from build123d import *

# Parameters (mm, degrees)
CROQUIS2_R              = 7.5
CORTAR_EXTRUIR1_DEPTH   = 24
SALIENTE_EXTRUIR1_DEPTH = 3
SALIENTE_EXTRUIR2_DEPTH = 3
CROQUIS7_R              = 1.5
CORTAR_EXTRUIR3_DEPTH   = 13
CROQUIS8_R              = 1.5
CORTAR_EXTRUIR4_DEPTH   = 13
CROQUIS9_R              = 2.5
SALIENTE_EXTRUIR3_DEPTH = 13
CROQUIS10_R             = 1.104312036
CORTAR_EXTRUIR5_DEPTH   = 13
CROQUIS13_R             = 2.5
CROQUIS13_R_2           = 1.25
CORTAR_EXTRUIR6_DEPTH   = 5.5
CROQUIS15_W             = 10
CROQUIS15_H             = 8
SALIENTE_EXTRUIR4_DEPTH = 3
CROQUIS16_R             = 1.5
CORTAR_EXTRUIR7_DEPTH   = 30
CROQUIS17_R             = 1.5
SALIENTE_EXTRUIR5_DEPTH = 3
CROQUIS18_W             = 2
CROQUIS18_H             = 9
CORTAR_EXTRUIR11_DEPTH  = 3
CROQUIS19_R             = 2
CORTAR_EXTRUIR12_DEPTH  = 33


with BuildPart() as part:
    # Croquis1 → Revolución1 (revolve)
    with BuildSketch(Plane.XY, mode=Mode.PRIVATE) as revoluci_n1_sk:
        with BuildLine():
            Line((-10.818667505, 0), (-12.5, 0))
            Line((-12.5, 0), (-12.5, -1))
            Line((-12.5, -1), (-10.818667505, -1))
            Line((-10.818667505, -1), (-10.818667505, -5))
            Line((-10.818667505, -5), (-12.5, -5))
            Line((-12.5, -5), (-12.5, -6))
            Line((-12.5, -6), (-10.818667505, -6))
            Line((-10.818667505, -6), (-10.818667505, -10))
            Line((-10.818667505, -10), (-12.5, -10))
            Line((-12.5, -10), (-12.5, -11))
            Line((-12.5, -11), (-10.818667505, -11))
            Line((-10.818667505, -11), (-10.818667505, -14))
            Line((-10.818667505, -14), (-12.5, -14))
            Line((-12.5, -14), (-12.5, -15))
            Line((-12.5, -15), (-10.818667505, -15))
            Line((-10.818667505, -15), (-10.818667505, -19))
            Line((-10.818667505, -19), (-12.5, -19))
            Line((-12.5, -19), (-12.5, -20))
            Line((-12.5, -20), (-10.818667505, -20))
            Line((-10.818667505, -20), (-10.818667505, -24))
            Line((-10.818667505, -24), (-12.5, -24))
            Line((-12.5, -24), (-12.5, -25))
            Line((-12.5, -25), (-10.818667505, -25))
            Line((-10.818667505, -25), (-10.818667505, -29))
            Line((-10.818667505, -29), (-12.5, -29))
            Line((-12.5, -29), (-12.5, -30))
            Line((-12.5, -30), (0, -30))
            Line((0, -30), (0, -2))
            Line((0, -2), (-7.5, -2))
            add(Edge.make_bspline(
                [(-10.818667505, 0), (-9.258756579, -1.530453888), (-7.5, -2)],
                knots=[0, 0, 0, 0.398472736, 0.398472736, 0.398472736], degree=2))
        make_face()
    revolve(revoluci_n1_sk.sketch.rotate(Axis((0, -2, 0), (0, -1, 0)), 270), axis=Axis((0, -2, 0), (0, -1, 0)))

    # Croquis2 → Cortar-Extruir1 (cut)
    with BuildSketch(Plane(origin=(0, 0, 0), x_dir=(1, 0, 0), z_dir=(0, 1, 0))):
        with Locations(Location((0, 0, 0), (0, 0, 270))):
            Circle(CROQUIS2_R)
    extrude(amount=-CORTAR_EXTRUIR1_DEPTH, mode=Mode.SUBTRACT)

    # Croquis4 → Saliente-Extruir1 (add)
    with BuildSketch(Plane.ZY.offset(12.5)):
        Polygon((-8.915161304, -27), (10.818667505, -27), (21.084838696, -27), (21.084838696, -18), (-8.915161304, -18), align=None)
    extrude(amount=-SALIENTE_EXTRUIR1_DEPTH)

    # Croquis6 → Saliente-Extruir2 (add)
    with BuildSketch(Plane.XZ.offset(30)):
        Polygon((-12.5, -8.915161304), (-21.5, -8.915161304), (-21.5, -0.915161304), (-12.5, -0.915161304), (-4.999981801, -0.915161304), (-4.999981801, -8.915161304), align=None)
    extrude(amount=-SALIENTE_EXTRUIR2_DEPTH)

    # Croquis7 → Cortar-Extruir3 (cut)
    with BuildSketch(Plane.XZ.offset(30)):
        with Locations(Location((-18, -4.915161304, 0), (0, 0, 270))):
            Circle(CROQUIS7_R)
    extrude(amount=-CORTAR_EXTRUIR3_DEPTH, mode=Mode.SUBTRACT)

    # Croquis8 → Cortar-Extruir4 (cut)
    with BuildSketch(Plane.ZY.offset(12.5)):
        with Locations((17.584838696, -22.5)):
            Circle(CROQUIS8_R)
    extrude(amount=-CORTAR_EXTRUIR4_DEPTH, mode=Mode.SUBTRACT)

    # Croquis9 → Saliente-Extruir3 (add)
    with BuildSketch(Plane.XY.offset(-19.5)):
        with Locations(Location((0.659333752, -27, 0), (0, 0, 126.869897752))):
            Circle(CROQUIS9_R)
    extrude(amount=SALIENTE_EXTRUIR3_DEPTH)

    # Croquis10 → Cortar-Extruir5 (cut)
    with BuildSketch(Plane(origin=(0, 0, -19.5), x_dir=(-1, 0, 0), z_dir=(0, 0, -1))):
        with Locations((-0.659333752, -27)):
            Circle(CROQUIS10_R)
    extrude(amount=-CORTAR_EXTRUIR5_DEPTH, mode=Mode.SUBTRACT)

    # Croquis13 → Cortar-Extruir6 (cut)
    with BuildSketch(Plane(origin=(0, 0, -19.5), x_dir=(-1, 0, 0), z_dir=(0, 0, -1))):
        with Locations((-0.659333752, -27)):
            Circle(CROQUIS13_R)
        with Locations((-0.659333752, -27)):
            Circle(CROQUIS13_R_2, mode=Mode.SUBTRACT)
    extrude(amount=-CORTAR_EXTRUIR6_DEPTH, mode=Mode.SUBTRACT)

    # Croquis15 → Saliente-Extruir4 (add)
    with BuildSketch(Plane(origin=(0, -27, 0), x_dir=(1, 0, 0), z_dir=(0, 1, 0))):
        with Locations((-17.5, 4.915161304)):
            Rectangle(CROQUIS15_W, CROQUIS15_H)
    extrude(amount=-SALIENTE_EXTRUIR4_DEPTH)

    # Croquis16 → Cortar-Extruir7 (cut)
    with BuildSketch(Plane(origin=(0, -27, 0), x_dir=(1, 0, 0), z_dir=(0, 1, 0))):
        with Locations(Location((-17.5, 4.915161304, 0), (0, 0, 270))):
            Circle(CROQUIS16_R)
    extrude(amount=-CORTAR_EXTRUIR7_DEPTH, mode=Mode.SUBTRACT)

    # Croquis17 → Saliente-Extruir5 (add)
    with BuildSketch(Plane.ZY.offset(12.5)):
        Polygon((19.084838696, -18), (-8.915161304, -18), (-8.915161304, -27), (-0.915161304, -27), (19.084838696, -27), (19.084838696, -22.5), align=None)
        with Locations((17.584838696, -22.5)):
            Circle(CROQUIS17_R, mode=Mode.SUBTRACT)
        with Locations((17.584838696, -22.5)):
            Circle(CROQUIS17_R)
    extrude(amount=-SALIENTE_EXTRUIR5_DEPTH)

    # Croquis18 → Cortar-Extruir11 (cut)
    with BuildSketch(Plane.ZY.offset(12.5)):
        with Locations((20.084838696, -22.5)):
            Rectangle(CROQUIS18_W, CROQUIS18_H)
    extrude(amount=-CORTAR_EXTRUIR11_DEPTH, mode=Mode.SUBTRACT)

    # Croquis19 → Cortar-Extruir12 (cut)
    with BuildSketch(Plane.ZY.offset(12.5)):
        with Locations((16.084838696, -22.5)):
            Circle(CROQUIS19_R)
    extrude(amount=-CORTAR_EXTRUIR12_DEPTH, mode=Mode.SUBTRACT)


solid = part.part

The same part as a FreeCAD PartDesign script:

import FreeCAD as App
import Part
import Sketcher

V = App.Vector
Q = App.Units.Quantity


def add_polygon(sketch, points):
    """Adds a closed chain of lines whose ends are joined by coincident constraints."""
    first, n = sketch.GeometryCount, len(points)
    for a, b in zip(points, points[1:] + points[:1]):
        sketch.addGeometry(Part.LineSegment(App.Vector(*a, 0), App.Vector(*b, 0)), False)
    for i in range(n):
        sketch.addConstraint(Sketcher.Constraint("Coincident", first + i, 2, first + (i + 1) % n, 1))

doc = App.newDocument("Part")
params = doc.addObject("Spreadsheet::Sheet", "Params")
for row, (alias, value) in enumerate([
    ("sketch1_height", "1 mm"),
    ("sketch1_height2", "4 mm"),
    ("sketch1_height3", "3 mm"),
    ("sketch1_width", "12.5 mm"),
    ("revolution_angle", "360 deg"),
    ("sketch2_diameter", "15 mm"),
    ("pocket1_length", "24 mm"),
    ("sketch3_width", "9 mm"),
    ("sketch3_height", "30 mm"),
    ("pad1_length", "3 mm"),
    ("sketch4_height", "8 mm"),
    ("pad2_length", "3 mm"),
    ("sketch5_diameter", "3 mm"),
    ("pocket2_length", "13 mm"),
    ("sketch6_diameter", "3 mm"),
    ("pocket3_length", "13 mm"),
    ("sketch7_diameter", "5 mm"),
    ("pad3_length", "13 mm"),
    ("pocket4_length", "13 mm"),
    ("sketch9_diameter", "5 mm"),
    ("sketch9_diameter2", "2.5 mm"),
    ("pocket5_length", "5.5 mm"),
    ("sketch10_width", "10 mm"),
    ("sketch10_height", "8 mm"),
    ("pad4_length", "3 mm"),
    ("sketch11_diameter", "3 mm"),
    ("pocket6_length", "30 mm"),
    ("sketch12_width", "9 mm"),
    ("sketch12_height", "28 mm"),
    ("pad5_length", "3 mm"),
    ("sketch13_width", "9 mm"),
    ("sketch13_height", "2 mm"),
    ("pocket7_length", "3 mm"),
    ("sketch14_diameter", "4 mm"),
    ("pocket8_length", "33 mm"),
], start=1):
    params.set(f"A{row}", alias)
    params.set(f"B{row}", "=" + value)
    params.setAlias(f"B{row}", alias)

body = doc.addObject("PartDesign::Body", "Body")

sketch1 = doc.addObject("Sketcher::SketchObject", "Sketch")
body.addObject(sketch1)
sketch1.AttachmentSupport = (doc.XY_Plane, [""])
sketch1.MapMode = "FlatFace"
sketch1.addGeometry([
    Part.LineSegment(V(-10.818668, 0, 0), V(-12.5, 0, 0)),
    Part.LineSegment(V(-12.5, 0, 0), V(-12.5, -1, 0)),
    Part.LineSegment(V(-12.5, -1, 0), V(-10.818668, -1, 0)),
    Part.LineSegment(V(-10.818668, -1, 0), V(-10.818668, -5, 0)),
    Part.LineSegment(V(-10.818668, -5, 0), V(-12.5, -5, 0)),
    Part.LineSegment(V(-12.5, -5, 0), V(-12.5, -6, 0)),
    Part.LineSegment(V(-12.5, -6, 0), V(-10.818668, -6, 0)),
    Part.LineSegment(V(-10.818668, -6, 0), V(-10.818668, -10, 0)),
    Part.LineSegment(V(-10.818668, -10, 0), V(-12.5, -10, 0)),
    Part.LineSegment(V(-12.5, -10, 0), V(-12.5, -11, 0)),
    Part.LineSegment(V(-12.5, -11, 0), V(-10.818668, -11, 0)),
    Part.LineSegment(V(-10.818668, -11, 0), V(-10.818668, -14, 0)),
    Part.LineSegment(V(-10.818668, -14, 0), V(-12.5, -14, 0)),
    Part.LineSegment(V(-12.5, -14, 0), V(-12.5, -15, 0)),
    Part.LineSegment(V(-12.5, -15, 0), V(-10.818668, -15, 0)),
    Part.LineSegment(V(-10.818668, -15, 0), V(-10.818668, -19, 0)),
    Part.LineSegment(V(-10.818668, -19, 0), V(-12.5, -19, 0)),
    Part.LineSegment(V(-12.5, -19, 0), V(-12.5, -20, 0)),
    Part.LineSegment(V(-12.5, -20, 0), V(-10.818668, -20, 0)),
    Part.LineSegment(V(-10.818668, -20, 0), V(-10.818668, -24, 0)),
    Part.LineSegment(V(-10.818668, -24, 0), V(-12.5, -24, 0)),
    Part.LineSegment(V(-12.5, -24, 0), V(-12.5, -25, 0)),
    Part.LineSegment(V(-12.5, -25, 0), V(-10.818668, -25, 0)),
    Part.LineSegment(V(-10.818668, -25, 0), V(-10.818668, -29, 0)),
    Part.LineSegment(V(-10.818668, -29, 0), V(-12.5, -29, 0)),
    Part.LineSegment(V(-12.5, -29, 0), V(-12.5, -30, 0)),
    Part.LineSegment(V(-12.5, -30, 0), V(0, -30, 0)),
    Part.LineSegment(V(0, -30, 0), V(0, -2, 0)),
    Part.LineSegment(V(0, -2, 0), V(-7.5, -2, 0)),
    Part.BSplineCurve([V(-10.818668, 0, 0), V(-9.258757, -1.530454, 0), V(-7.5, -2, 0)], [3, 3], [0, 0.398472736], False, 2, [1, 1, 1], False),
], False)
sketch1.addConstraint([
    Sketcher.Constraint("Block", 29),
    Sketcher.Constraint("Coincident", 0, 2, 1, 1),
    Sketcher.Constraint("Coincident", 1, 2, 2, 1),
    Sketcher.Constraint("Coincident", 2, 2, 3, 1),
    Sketcher.Constraint("Coincident", 3, 2, 4, 1),
    Sketcher.Constraint("Coincident", 4, 2, 5, 1),
    Sketcher.Constraint("Coincident", 5, 2, 6, 1),
    Sketcher.Constraint("Coincident", 6, 2, 7, 1),
    Sketcher.Constraint("Coincident", 7, 2, 8, 1),
    Sketcher.Constraint("Coincident", 8, 2, 9, 1),
    Sketcher.Constraint("Coincident", 9, 2, 10, 1),
    Sketcher.Constraint("Coincident", 10, 2, 11, 1),
    Sketcher.Constraint("Coincident", 11, 2, 12, 1),
    Sketcher.Constraint("Coincident", 12, 2, 13, 1),
    Sketcher.Constraint("Coincident", 13, 2, 14, 1),
    Sketcher.Constraint("Coincident", 14, 2, 15, 1),
    Sketcher.Constraint("Coincident", 15, 2, 16, 1),
    Sketcher.Constraint("Coincident", 16, 2, 17, 1),
    Sketcher.Constraint("Coincident", 17, 2, 18, 1),
    Sketcher.Constraint("Coincident", 18, 2, 19, 1),
    Sketcher.Constraint("Coincident", 19, 2, 20, 1),
    Sketcher.Constraint("Coincident", 20, 2, 21, 1),
    Sketcher.Constraint("Coincident", 21, 2, 22, 1),
    Sketcher.Constraint("Coincident", 22, 2, 23, 1),
    Sketcher.Constraint("Coincident", 23, 2, 24, 1),
    Sketcher.Constraint("Coincident", 24, 2, 25, 1),
    Sketcher.Constraint("Coincident", 25, 2, 26, 1),
    Sketcher.Constraint("Coincident", 26, 2, 27, 1),
    Sketcher.Constraint("Coincident", 27, 2, 28, 1),
    Sketcher.Constraint("Coincident", 28, 2, 29, 2),
    Sketcher.Constraint("Coincident", 29, 1, 0, 1),
    Sketcher.Constraint("Horizontal", 0),
    Sketcher.Constraint("Vertical", 1),
    Sketcher.Constraint("Horizontal", 2),
    Sketcher.Constraint("Vertical", 3),
    Sketcher.Constraint("Horizontal", 4),
    Sketcher.Constraint("Vertical", 5),
    Sketcher.Constraint("Horizontal", 6),
    Sketcher.Constraint("Vertical", 7),
    Sketcher.Constraint("Horizontal", 8),
    Sketcher.Constraint("Vertical", 9),
    Sketcher.Constraint("Horizontal", 10),
    Sketcher.Constraint("Vertical", 11),
    Sketcher.Constraint("Horizontal", 12),
    Sketcher.Constraint("Vertical", 13),
    Sketcher.Constraint("Horizontal", 14),
    Sketcher.Constraint("Vertical", 15),
    Sketcher.Constraint("Horizontal", 16),
    Sketcher.Constraint("Vertical", 17),
    Sketcher.Constraint("Horizontal", 18),
    Sketcher.Constraint("Vertical", 19),
    Sketcher.Constraint("Horizontal", 20),
    Sketcher.Constraint("Vertical", 21),
    Sketcher.Constraint("Horizontal", 22),
    Sketcher.Constraint("Vertical", 23),
    Sketcher.Constraint("Horizontal", 24),
    Sketcher.Constraint("Vertical", 25),
    Sketcher.Constraint("Horizontal", 26),
    Sketcher.Constraint("Vertical", 27),
    Sketcher.Constraint("Horizontal", 28),
    Sketcher.Constraint("PointOnObject", 26, 2, -2),
    Sketcher.Constraint("Vertical", 1, 2, 4, 2),
    Sketcher.Constraint("Vertical", 3, 2, 6, 2),
    Sketcher.Constraint("Vertical", 5, 2, 8, 2),
    Sketcher.Constraint("Vertical", 7, 2, 10, 2),
    Sketcher.Constraint("Vertical", 9, 2, 12, 2),
    Sketcher.Constraint("Vertical", 11, 2, 14, 2),
    Sketcher.Constraint("Vertical", 13, 2, 16, 2),
    Sketcher.Constraint("Vertical", 15, 2, 18, 2),
    Sketcher.Constraint("Vertical", 17, 2, 20, 2),
    Sketcher.Constraint("Vertical", 19, 2, 22, 2),
    Sketcher.Constraint("Vertical", 21, 2, 24, 2),
    Sketcher.Constraint("Equal", 0, 2),
    Sketcher.Constraint("Equal", 1, 5),
    Sketcher.Constraint("Equal", 3, 7),
    Sketcher.Constraint("Equal", 5, 9),
    Sketcher.Constraint("Equal", 9, 13),
    Sketcher.Constraint("Equal", 7, 15),
    Sketcher.Constraint("Equal", 13, 17),
    Sketcher.Constraint("Equal", 15, 19),
    Sketcher.Constraint("Equal", 17, 21),
    Sketcher.Constraint("Equal", 19, 23),
    Sketcher.Constraint("Equal", 21, 25),
    Sketcher.Constraint("DistanceY", 1, 2, 1, 1, Q("1 mm")),
    Sketcher.Constraint("DistanceY", 3, 2, 3, 1, Q("4 mm")),
    Sketcher.Constraint("DistanceY", 11, 2, 11, 1, Q("3 mm")),
    Sketcher.Constraint("DistanceX", 26, 1, 26, 2, Q("12.5 mm")),
])
sketch1.setExpression("Constraints[83]", "Params.sketch1_height")
sketch1.setExpression("Constraints[84]", "Params.sketch1_height2")
sketch1.setExpression("Constraints[85]", "Params.sketch1_height3")
sketch1.setExpression("Constraints[86]", "Params.sketch1_width")
revolution = doc.addObject("PartDesign::Revolution", "Revolution")
body.addObject(revolution)
revolution.Profile = sketch1
revolution.ReferenceAxis = (sketch1, ["V_Axis"])
revolution.setExpression("Angle", "Params.revolution_angle")

sketch2 = doc.addObject("Sketcher::SketchObject", "Sketch001")
body.addObject(sketch2)
sketch2.AttachmentSupport = (doc.XZ_Plane, [""])
sketch2.MapMode = "FlatFace"
sketch2.addGeometry(Part.Circle(V(0, 0, 0), V(0, 0, 1), 8), False)
sketch2.addConstraint([
    Sketcher.Constraint("Coincident", 0, 3, -1, 1),
    Sketcher.Constraint("Diameter", 0, Q("15 mm")),
])
sketch2.setExpression("Constraints[1]", "Params.sketch2_diameter")
pocket1 = doc.addObject("PartDesign::Pocket", "Pocket")
body.addObject(pocket1)
pocket1.Profile = sketch2
pocket1.setExpression("Length", "Params.pocket1_length")
pocket1.Reversed = True

sketch3 = doc.addObject("Sketcher::SketchObject", "Sketch002")
body.addObject(sketch3)
sketch3.AttachmentSupport = (doc.YZ_Plane, [""])
sketch3.MapMode = "FlatFace"
sketch3.AttachmentOffset = App.Placement(V(0, 0, -12.5), App.Rotation())
add_polygon(sketch3, [(-27, -9), (-27, 21), (-18, 21), (-18, -9)])
sketch3.addConstraint([
    Sketcher.Constraint("Vertical", 0),
    Sketcher.Constraint("Horizontal", 1),
    Sketcher.Constraint("Vertical", 2),
    Sketcher.Constraint("Horizontal", 3),
    Sketcher.Constraint("DistanceX", 1, 1, 1, 2, Q("9 mm")),
    Sketcher.Constraint("DistanceY", 0, 1, 0, 2, Q("30 mm")),
    Sketcher.Constraint("DistanceX", 0, 2, -1, 1, Q("27 mm")),
    Sketcher.Constraint("DistanceY", -1, 1, 0, 2, Q("21.084839 mm")),
])
sketch3.setExpression("Constraints[8]", "Params.sketch3_width")
sketch3.setExpression("Constraints[9]", "Params.sketch3_height")
pad1 = doc.addObject("PartDesign::Pad", "Pad")
body.addObject(pad1)
pad1.Profile = sketch3
pad1.setExpression("Length", "Params.pad1_length")

sketch4 = doc.addObject("Sketcher::SketchObject", "Sketch003")
body.addObject(sketch4)
sketch4.AttachmentSupport = (doc.XZ_Plane, [""])
sketch4.MapMode = "FlatFace"
sketch4.AttachmentOffset = App.Placement(V(0, 0, 30), App.Rotation())
add_polygon(sketch4, [(-22, -9), (-5, -9), (-5, -1), (-22, -1)])
sketch4.addConstraint([
    Sketcher.Constraint("Horizontal", 0),
    Sketcher.Constraint("Vertical", 1),
    Sketcher.Constraint("Horizontal", 2),
    Sketcher.Constraint("Vertical", 3),
    Sketcher.Constraint("DistanceY", 1, 1, 1, 2, Q("8 mm")),
    Sketcher.Constraint("DistanceX", 2, 2, -1, 1, Q("21.5 mm")),
    Sketcher.Constraint("DistanceX", 0, 1, 0, 2, Q("16.500018 mm")),
    Sketcher.Constraint("DistanceY", 0, 2, -1, 1, Q("8.915161 mm")),
])
sketch4.setExpression("Constraints[8]", "Params.sketch4_height")
pad2 = doc.addObject("PartDesign::Pad", "Pad001")
body.addObject(pad2)
pad2.Profile = sketch4
pad2.setExpression("Length", "Params.pad2_length")
pad2.Reversed = True

sketch5 = doc.addObject("Sketcher::SketchObject", "Sketch004")
body.addObject(sketch5)
sketch5.AttachmentSupport = (doc.XZ_Plane, [""])
sketch5.MapMode = "FlatFace"
sketch5.AttachmentOffset = App.Placement(V(0, 0, 30), App.Rotation())
sketch5.addGeometry(Part.Circle(V(-18, -4.9, 0), V(0, 0, 1), 1.5), False)
sketch5.addConstraint([
    Sketcher.Constraint("Diameter", 0, Q("3 mm")),
    Sketcher.Constraint("DistanceX", 0, 3, -1, 1, Q("18 mm")),
    Sketcher.Constraint("DistanceY", 0, 3, -1, 1, Q("4.915161 mm")),
])
sketch5.setExpression("Constraints[0]", "Params.sketch5_diameter")
pocket2 = doc.addObject("PartDesign::Pocket", "Pocket001")
body.addObject(pocket2)
pocket2.Profile = sketch5
pocket2.setExpression("Length", "Params.pocket2_length")

sketch6 = doc.addObject("Sketcher::SketchObject", "Sketch005")
body.addObject(sketch6)
sketch6.AttachmentSupport = (doc.YZ_Plane, [""])
sketch6.MapMode = "FlatFace"
sketch6.AttachmentOffset = App.Placement(V(0, 0, -12.5), App.Rotation())
sketch6.addGeometry(Part.Circle(V(-22.5, 17.6, 0), V(0, 0, 1), 1.5), False)
sketch6.addConstraint([
    Sketcher.Constraint("Diameter", 0, Q("3 mm")),
    Sketcher.Constraint("DistanceX", 0, 3, -1, 1, Q("22.5 mm")),
    Sketcher.Constraint("DistanceY", -1, 1, 0, 3, Q("17.584839 mm")),
])
sketch6.setExpression("Constraints[0]", "Params.sketch6_diameter")
pocket3 = doc.addObject("PartDesign::Pocket", "Pocket002")
body.addObject(pocket3)
pocket3.Profile = sketch6
pocket3.setExpression("Length", "Params.pocket3_length")
pocket3.Reversed = True

sketch7 = doc.addObject("Sketcher::SketchObject", "Sketch006")
body.addObject(sketch7)
sketch7.AttachmentSupport = (doc.XY_Plane, [""])
sketch7.MapMode = "FlatFace"
sketch7.AttachmentOffset = App.Placement(V(0, 0, -19.5), App.Rotation())
sketch7.addGeometry(Part.Circle(V(0.7, -27, 0), V(0, 0, 1), 2.5), False)
sketch7.addConstraint([
    Sketcher.Constraint("Diameter", 0, Q("5 mm")),
    Sketcher.Constraint("DistanceY", 0, 3, -1, 1, Q("27 mm")),
    Sketcher.Constraint("DistanceX", -1, 1, 0, 3, Q("0.659334 mm")),
])
sketch7.setExpression("Constraints[0]", "Params.sketch7_diameter")
pad3 = doc.addObject("PartDesign::Pad", "Pad002")
body.addObject(pad3)
pad3.Profile = sketch7
pad3.setExpression("Length", "Params.pad3_length")

sketch8 = doc.addObject("Sketcher::SketchObject", "Sketch007")
body.addObject(sketch8)
sketch8.AttachmentSupport = (doc.XY_Plane, [""])
sketch8.MapMode = "FlatFace"
sketch8.AttachmentOffset = App.Placement(V(0, 0, -19.5), App.Rotation())
sketch8.addGeometry(Part.Circle(V(0.7, -27, 0), V(0, 0, 1), 1.1), False)
sketch8.addConstraint([
    Sketcher.Constraint("DistanceY", 0, 3, -1, 1, Q("27 mm")),
    Sketcher.Constraint("Diameter", 0, Q("2.208624 mm")),
    Sketcher.Constraint("DistanceX", -1, 1, 0, 3, Q("0.659334 mm")),
])
pocket4 = doc.addObject("PartDesign::Pocket", "Pocket003")
body.addObject(pocket4)
pocket4.Profile = sketch8
pocket4.setExpression("Length", "Params.pocket4_length")
pocket4.Reversed = True

sketch9 = doc.addObject("Sketcher::SketchObject", "Sketch008")
body.addObject(sketch9)
sketch9.AttachmentSupport = (doc.XY_Plane, [""])
sketch9.MapMode = "FlatFace"
sketch9.AttachmentOffset = App.Placement(V(0, 0, -19.5), App.Rotation())
sketch9.addGeometry([
    Part.Circle(V(0.7, -27, 0), V(0, 0, 1), 2.5),
    Part.Circle(V(0.7, -27, 0), V(0, 0, 1), 1.2),
], False)
sketch9.addConstraint([
    Sketcher.Constraint("Coincident", 1, 3, 0, 3),
    Sketcher.Constraint("Diameter", 0, Q("5 mm")),
    Sketcher.Constraint("Diameter", 1, Q("2.5 mm")),
    Sketcher.Constraint("DistanceY", 0, 3, -1, 1, Q("27 mm")),
    Sketcher.Constraint("DistanceX", -1, 1, 0, 3, Q("0.659334 mm")),
])
sketch9.setExpression("Constraints[1]", "Params.sketch9_diameter")
sketch9.setExpression("Constraints[2]", "Params.sketch9_diameter2")
pocket5 = doc.addObject("PartDesign::Pocket", "Pocket004")
body.addObject(pocket5)
pocket5.Profile = sketch9
pocket5.setExpression("Length", "Params.pocket5_length")
pocket5.Reversed = True

sketch10 = doc.addObject("Sketcher::SketchObject", "Sketch009")
body.addObject(sketch10)
sketch10.AttachmentSupport = (doc.XZ_Plane, [""])
sketch10.MapMode = "FlatFace"
sketch10.AttachmentOffset = App.Placement(V(0, 0, 27), App.Rotation())
add_polygon(sketch10, [(-22, -9), (-22, -1), (-12, -1), (-12, -9)])
sketch10.addConstraint([
    Sketcher.Constraint("Vertical", 0),
    Sketcher.Constraint("Horizontal", 1),
    Sketcher.Constraint("Vertical", 2),
    Sketcher.Constraint("Horizontal", 3),
    Sketcher.Constraint("DistanceX", 1, 1, 1, 2, Q("10 mm")),
    Sketcher.Constraint("DistanceY", 0, 1, 0, 2, Q("8 mm")),
    Sketcher.Constraint("DistanceX", 0, 2, -1, 1, Q("22.5 mm")),
    Sketcher.Constraint("DistanceY", 0, 2, -1, 1, Q("0.915161 mm")),
])
sketch10.setExpression("Constraints[8]", "Params.sketch10_width")
sketch10.setExpression("Constraints[9]", "Params.sketch10_height")
pad4 = doc.addObject("PartDesign::Pad", "Pad003")
body.addObject(pad4)
pad4.Profile = sketch10
pad4.setExpression("Length", "Params.pad4_length")

sketch11 = doc.addObject("Sketcher::SketchObject", "Sketch010")
body.addObject(sketch11)
sketch11.AttachmentSupport = (doc.XZ_Plane, [""])
sketch11.MapMode = "FlatFace"
sketch11.AttachmentOffset = App.Placement(V(0, 0, 27), App.Rotation())
sketch11.addGeometry(Part.Circle(V(-17.5, -4.9, 0), V(0, 0, 1), 1.5), False)
sketch11.addConstraint([
    Sketcher.Constraint("Diameter", 0, Q("3 mm")),
    Sketcher.Constraint("DistanceX", 0, 3, -1, 1, Q("17.5 mm")),
    Sketcher.Constraint("DistanceY", 0, 3, -1, 1, Q("4.915161 mm")),
])
sketch11.setExpression("Constraints[0]", "Params.sketch11_diameter")
pocket6 = doc.addObject("PartDesign::Pocket", "Pocket005")
body.addObject(pocket6)
pocket6.Profile = sketch11
pocket6.setExpression("Length", "Params.pocket6_length")
pocket6.Reversed = True

sketch12 = doc.addObject("Sketcher::SketchObject", "Sketch011")
body.addObject(sketch12)
sketch12.AttachmentSupport = (doc.YZ_Plane, [""])
sketch12.MapMode = "FlatFace"
sketch12.AttachmentOffset = App.Placement(V(0, 0, -12.5), App.Rotation())
add_polygon(sketch12, [(-27, 19), (-18, 19), (-18, -9), (-27, -9)])
sketch12.addConstraint([
    Sketcher.Constraint("Horizontal", 0),
    Sketcher.Constraint("Vertical", 1),
    Sketcher.Constraint("Horizontal", 2),
    Sketcher.Constraint("Vertical", 3),
    Sketcher.Constraint("DistanceX", 0, 1, 0, 2, Q("9 mm")),
    Sketcher.Constraint("DistanceY", 1, 2, 1, 1, Q("28 mm")),
    Sketcher.Constraint("DistanceX", 0, 2, -1, 1, Q("18 mm")),
    Sketcher.Constraint("DistanceY", -1, 1, 0, 2, Q("19.084839 mm")),
])
sketch12.setExpression("Constraints[8]", "Params.sketch12_width")
sketch12.setExpression("Constraints[9]", "Params.sketch12_height")
pad5 = doc.addObject("PartDesign::Pad", "Pad004")
body.addObject(pad5)
pad5.Profile = sketch12
pad5.setExpression("Length", "Params.pad5_length")

sketch13 = doc.addObject("Sketcher::SketchObject", "Sketch012")
body.addObject(sketch13)
sketch13.AttachmentSupport = (doc.YZ_Plane, [""])
sketch13.MapMode = "FlatFace"
sketch13.AttachmentOffset = App.Placement(V(0, 0, -12.5), App.Rotation())
add_polygon(sketch13, [(-18, 19.1), (-27, 19.1), (-27, 21.1), (-18, 21.1)])
sketch13.addConstraint([
    Sketcher.Constraint("Horizontal", 0),
    Sketcher.Constraint("Vertical", 1),
    Sketcher.Constraint("Horizontal", 2),
    Sketcher.Constraint("Vertical", 3),
    Sketcher.Constraint("DistanceX", 0, 2, 0, 1, Q("9 mm")),
    Sketcher.Constraint("DistanceY", 1, 1, 1, 2, Q("2 mm")),
    Sketcher.Constraint("DistanceX", 0, 2, -1, 1, Q("27 mm")),
    Sketcher.Constraint("DistanceY", -1, 1, 0, 2, Q("19.084839 mm")),
])
sketch13.setExpression("Constraints[8]", "Params.sketch13_width")
sketch13.setExpression("Constraints[9]", "Params.sketch13_height")
pocket7 = doc.addObject("PartDesign::Pocket", "Pocket006")
body.addObject(pocket7)
pocket7.Profile = sketch13
pocket7.setExpression("Length", "Params.pocket7_length")
pocket7.Reversed = True

sketch14 = doc.addObject("Sketcher::SketchObject", "Sketch013")
body.addObject(sketch14)
sketch14.AttachmentSupport = (doc.YZ_Plane, [""])
sketch14.MapMode = "FlatFace"
sketch14.AttachmentOffset = App.Placement(V(0, 0, -12.5), App.Rotation())
sketch14.addGeometry(Part.Circle(V(-22.5, 16.1, 0), V(0, 0, 1), 2), False)
sketch14.addConstraint([
    Sketcher.Constraint("Diameter", 0, Q("4 mm")),
    Sketcher.Constraint("DistanceX", 0, 3, -1, 1, Q("22.5 mm")),
    Sketcher.Constraint("DistanceY", -1, 1, 0, 3, Q("16.084839 mm")),
])
sketch14.setExpression("Constraints[0]", "Params.sketch14_diameter")
pocket8 = doc.addObject("PartDesign::Pocket", "Pocket007")
body.addObject(pocket8)
pocket8.Profile = sketch14
pocket8.setExpression("Length", "Params.pocket8_length")
pocket8.Reversed = True

doc.recompute()
